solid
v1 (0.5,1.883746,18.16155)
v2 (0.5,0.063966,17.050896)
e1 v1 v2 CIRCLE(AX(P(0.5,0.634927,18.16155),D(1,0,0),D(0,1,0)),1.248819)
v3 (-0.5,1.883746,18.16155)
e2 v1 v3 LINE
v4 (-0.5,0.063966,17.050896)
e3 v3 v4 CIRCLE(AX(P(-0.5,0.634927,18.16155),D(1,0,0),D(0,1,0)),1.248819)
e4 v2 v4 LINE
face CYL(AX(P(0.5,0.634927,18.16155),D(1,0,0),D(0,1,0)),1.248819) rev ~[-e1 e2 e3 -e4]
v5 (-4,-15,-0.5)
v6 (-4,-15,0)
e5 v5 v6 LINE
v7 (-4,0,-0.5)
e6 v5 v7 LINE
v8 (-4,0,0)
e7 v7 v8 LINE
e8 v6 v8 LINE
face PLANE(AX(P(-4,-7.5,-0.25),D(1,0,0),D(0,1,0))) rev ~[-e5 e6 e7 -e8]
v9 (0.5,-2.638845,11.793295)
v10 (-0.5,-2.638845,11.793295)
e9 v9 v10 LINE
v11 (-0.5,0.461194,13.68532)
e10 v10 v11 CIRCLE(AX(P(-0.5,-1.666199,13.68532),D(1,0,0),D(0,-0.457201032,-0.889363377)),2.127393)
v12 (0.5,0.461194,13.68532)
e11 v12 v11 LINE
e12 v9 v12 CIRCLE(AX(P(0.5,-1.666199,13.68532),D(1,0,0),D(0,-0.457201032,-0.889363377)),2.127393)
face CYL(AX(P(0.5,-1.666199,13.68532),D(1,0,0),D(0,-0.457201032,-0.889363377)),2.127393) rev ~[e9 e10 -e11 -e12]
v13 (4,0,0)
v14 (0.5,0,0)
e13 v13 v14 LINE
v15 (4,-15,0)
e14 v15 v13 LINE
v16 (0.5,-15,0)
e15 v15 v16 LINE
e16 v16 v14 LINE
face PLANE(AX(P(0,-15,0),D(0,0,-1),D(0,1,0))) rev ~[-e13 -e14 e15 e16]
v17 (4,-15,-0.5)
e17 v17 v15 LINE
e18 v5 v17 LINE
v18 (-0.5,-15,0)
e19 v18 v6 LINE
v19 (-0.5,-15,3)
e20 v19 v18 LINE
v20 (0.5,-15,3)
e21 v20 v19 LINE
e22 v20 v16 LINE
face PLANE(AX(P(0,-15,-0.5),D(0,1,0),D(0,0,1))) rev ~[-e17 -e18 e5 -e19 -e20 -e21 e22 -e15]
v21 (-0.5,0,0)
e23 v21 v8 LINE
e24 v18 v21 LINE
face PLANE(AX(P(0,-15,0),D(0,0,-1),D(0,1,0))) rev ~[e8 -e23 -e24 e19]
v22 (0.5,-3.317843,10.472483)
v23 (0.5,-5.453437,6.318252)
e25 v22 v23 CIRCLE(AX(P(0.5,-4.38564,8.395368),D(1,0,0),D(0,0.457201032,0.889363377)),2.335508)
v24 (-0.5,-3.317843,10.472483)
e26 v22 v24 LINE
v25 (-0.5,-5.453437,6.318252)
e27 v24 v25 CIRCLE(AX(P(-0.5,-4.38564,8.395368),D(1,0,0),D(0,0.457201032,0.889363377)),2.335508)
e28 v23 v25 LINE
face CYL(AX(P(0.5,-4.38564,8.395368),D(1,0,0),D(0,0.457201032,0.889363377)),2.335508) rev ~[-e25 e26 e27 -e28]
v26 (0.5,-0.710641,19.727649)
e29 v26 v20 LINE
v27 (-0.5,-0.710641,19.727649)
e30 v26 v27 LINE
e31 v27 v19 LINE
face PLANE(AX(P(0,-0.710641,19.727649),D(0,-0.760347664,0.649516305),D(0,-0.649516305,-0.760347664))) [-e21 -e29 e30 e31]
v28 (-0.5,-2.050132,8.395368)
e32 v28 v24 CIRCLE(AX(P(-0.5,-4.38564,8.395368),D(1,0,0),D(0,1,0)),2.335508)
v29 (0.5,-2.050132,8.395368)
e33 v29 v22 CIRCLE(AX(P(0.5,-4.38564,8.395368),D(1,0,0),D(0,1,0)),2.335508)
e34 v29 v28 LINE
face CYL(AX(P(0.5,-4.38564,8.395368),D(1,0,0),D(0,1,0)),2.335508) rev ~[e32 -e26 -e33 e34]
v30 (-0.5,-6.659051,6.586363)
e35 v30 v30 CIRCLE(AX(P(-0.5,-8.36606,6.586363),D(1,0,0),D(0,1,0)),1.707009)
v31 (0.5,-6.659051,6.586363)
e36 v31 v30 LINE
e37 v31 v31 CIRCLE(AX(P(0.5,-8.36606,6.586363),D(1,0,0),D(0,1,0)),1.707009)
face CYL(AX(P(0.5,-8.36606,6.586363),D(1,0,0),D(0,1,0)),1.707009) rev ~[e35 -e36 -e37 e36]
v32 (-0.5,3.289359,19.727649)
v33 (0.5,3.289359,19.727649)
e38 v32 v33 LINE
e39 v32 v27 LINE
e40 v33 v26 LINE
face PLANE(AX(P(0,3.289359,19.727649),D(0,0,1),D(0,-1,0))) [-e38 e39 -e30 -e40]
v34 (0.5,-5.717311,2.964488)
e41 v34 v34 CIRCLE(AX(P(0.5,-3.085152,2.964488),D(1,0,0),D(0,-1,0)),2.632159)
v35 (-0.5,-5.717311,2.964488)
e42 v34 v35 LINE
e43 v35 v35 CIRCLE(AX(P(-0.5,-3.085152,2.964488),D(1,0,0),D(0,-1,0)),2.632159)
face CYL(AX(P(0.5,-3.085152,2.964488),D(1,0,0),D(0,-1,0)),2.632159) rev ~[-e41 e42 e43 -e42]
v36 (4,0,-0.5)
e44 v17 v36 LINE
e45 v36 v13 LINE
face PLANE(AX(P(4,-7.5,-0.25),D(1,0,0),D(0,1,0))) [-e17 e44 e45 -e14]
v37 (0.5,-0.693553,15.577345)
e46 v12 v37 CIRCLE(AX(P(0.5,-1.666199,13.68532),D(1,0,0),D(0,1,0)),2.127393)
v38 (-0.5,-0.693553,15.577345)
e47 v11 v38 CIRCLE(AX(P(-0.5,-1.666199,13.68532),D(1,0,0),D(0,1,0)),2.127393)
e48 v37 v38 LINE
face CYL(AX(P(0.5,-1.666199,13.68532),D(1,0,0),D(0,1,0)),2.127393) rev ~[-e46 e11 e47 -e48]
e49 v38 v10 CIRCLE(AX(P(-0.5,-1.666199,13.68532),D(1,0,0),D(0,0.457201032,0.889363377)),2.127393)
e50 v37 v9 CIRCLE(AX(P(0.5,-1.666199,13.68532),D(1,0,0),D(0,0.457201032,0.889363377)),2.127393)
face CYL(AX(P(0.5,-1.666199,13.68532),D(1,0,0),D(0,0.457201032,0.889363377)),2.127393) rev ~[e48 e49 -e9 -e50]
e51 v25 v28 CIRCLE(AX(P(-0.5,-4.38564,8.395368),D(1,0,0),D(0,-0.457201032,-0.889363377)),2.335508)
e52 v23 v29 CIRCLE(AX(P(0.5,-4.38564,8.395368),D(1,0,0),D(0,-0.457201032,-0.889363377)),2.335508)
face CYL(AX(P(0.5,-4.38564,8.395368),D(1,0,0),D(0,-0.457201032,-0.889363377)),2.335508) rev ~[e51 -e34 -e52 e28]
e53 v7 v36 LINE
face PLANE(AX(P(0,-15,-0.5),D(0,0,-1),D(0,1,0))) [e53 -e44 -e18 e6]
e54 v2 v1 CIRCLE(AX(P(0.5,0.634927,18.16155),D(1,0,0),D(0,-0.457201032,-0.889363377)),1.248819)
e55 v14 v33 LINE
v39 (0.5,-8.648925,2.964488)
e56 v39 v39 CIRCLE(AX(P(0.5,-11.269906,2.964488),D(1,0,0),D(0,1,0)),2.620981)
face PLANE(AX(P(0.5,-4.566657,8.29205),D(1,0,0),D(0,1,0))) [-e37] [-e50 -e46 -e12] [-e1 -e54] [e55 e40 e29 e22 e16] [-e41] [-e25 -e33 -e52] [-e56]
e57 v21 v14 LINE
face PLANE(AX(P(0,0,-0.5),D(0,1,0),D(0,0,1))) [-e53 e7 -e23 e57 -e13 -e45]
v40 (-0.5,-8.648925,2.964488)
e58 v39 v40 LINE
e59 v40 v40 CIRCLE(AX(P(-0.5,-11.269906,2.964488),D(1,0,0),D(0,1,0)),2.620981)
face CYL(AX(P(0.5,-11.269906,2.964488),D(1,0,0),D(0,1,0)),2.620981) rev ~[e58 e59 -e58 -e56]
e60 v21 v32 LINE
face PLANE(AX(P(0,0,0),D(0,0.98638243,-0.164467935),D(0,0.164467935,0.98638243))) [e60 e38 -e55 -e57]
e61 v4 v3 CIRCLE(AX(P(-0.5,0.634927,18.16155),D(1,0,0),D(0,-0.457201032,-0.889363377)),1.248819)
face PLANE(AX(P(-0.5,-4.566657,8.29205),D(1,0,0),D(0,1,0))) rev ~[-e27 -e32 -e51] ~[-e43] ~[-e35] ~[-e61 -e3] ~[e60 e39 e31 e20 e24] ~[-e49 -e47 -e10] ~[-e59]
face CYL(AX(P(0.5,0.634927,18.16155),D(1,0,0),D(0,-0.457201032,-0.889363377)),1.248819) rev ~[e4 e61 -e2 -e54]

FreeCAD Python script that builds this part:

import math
import FreeCAD as App
import Part
import Sketcher

V = App.Vector
Q = App.Units.Quantity


def add_polygon(sketch, points):
    """Adds a closed chain of lines whose ends are joined by coincident constraints."""
    first, n = sketch.GeometryCount, len(points)
    for a, b in zip(points, points[1:] + points[:1]):
        sketch.addGeometry(Part.LineSegment(App.Vector(*a, 0), App.Vector(*b, 0)), False)
    for i in range(n):
        sketch.addConstraint(Sketcher.Constraint("Coincident", first + i, 2, first + (i + 1) % n, 1))

doc = App.newDocument("Part")
body = doc.addObject("PartDesign::Body", "Body")

sketch1 = body.newObject("Sketcher::SketchObject", "Sketch")
sketch1.AttachmentSupport = (doc.getObject("YZ_Plane"), [""])
sketch1.MapMode = "FlatFace"
add_polygon(sketch1, [(-15, 0), (0, 0), (3.3, 19.7), (-0.7, 19.7), (-15, 3)])
sketch1.addConstraint([
    Sketcher.Constraint("Horizontal", 0),
    Sketcher.Constraint("Horizontal", 2),
    Sketcher.Constraint("Vertical", 4),
    Sketcher.Constraint("Coincident", 0, 2, -1, 1),
    Sketcher.Constraint("DistanceX", 0, 1, 0, 2, Q("15 mm")),
    Sketcher.Constraint("DistanceX", 2, 2, 2, 1, Q("4 mm")),
    Sketcher.Constraint("DistanceY", 4, 2, 4, 1, Q("3 mm")),
    Sketcher.Constraint("Distance", 1, Q("20 mm")),
    Sketcher.Constraint("Distance", 3, Q("22 mm")),
])
pad1 = body.newObject("PartDesign::Pad", "Pad")
pad1.Profile = sketch1
pad1.Length = 1
pad1.Midplane = True

sketch2 = body.newObject("Sketcher::SketchObject", "Sketch001")
sketch2.AttachmentSupport = (doc.getObject("YZ_Plane"), [""])
sketch2.MapMode = "FlatFace"
add_polygon(sketch2, [(-15, 0), (-15, -0.5), (0, -0.5), (0, 0)])
sketch2.addConstraint([
    Sketcher.Constraint("Vertical", 0),
    Sketcher.Constraint("Horizontal", 1),
    Sketcher.Constraint("Vertical", 2),
    Sketcher.Constraint("Horizontal", 3),
    Sketcher.Constraint("Coincident", 2, 2, -1, 1),
    Sketcher.Constraint("DistanceX", 1, 1, 1, 2, Q("15 mm")),
    Sketcher.Constraint("DistanceY", 0, 2, 0, 1, Q("0.5 mm")),
])
pad2 = body.newObject("PartDesign::Pad", "Pad001")
pad2.Profile = sketch2
pad2.Length = 8
pad2.Midplane = True

sketch3 = body.newObject("Sketcher::SketchObject", "Sketch002")
sketch3.AttachmentSupport = (doc.getObject("YZ_Plane"), [""])
sketch3.MapMode = "FlatFace"
sketch3.AttachmentOffset = App.Placement(V(0, 0, 0.5), App.Rotation())
sketch3.addGeometry([
    Part.Circle(V(-3.1, 3, 0), V(0, 0, 1), 2.6),
    Part.Circle(V(-11.3, 3, 0), V(0, 0, 1), 2.6),
    Part.ArcOfCircle(Part.Circle(V(-4.4, 8.4, 0), V(0, 0, 1), 2.3), math.radians(-117), math.radians(0)),
    Part.ArcOfCircle(Part.Circle(V(-4.4, 8.4, 0), V(0, 0, 1), 2.3), math.radians(0), math.radians(63)),
    Part.ArcOfCircle(Part.Circle(V(-4.4, 8.4, 0), V(0, 0, 1), 2.3), math.radians(63), math.radians(243)),
    Part.ArcOfCircle(Part.Circle(V(-1.7, 13.7, 0), V(0, 0, 1), 2.1), math.radians(-117), math.radians(0)),
    Part.ArcOfCircle(Part.Circle(V(-1.7, 13.7, 0), V(0, 0, 1), 2.1), math.radians(0), math.radians(63)),
    Part.ArcOfCircle(Part.Circle(V(-1.7, 13.7, 0), V(0, 0, 1), 2.1), math.radians(63), math.radians(243)),
    Part.ArcOfCircle(Part.Circle(V(0.6, 18.2, 0), V(0, 0, 1), 1.2), math.radians(0), math.radians(243)),
    Part.ArcOfCircle(Part.Circle(V(0.6, 18.2, 0), V(0, 0, 1), 1.2), math.radians(-117), math.radians(0)),
], False)
sketch3.addConstraint([
    Sketcher.Constraint("Tangent", 2, 2, 3, 1),
    Sketcher.Constraint("Tangent", 3, 2, 4, 1),
    Sketcher.Constraint("Tangent", 4, 2, 2, 1),
    Sketcher.Constraint("Tangent", 5, 2, 6, 1),
    Sketcher.Constraint("Tangent", 6, 2, 7, 1),
    Sketcher.Constraint("Tangent", 7, 2, 5, 1),
    Sketcher.Constraint("Tangent", 8, 1, 9, 2),
    Sketcher.Constraint("Coincident", 9, 1, 8, 2),
    Sketcher.Constraint("Horizontal", 0, 3, 1, 3),
    Sketcher.Constraint("Horizontal", 4, 3, 2, 2),
    Sketcher.Constraint("Horizontal", 7, 3, 5, 2),
    Sketcher.Constraint("Horizontal", 9, 3, 8, 1),
    Sketcher.Constraint("Diameter", 1, Q("5.241961 mm")),
    Sketcher.Constraint("Radius", 2, Q("2.335508 mm")),
    Sketcher.Constraint("Radius", 8, Q("1.248819 mm")),
    Sketcher.Constraint("Diameter", 0, Q("5.264318 mm")),
    Sketcher.Constraint("Radius", 5, Q("2.127393 mm")),
    Sketcher.Constraint("DistanceX", 3, 2, 7, 2, Q("0.678998 mm")),
    Sketcher.Constraint("DistanceX", 5, 3, -1, 1, Q("1.666199 mm")),
    Sketcher.Constraint("DistanceX", 6, 2, 8, 1, Q("2.577299 mm")),
    Sketcher.Constraint("DistanceX", 2, 3, -1, 1, Q("4.38564 mm")),
    Sketcher.Constraint("DistanceY", -1, 1, 5, 3, Q("13.68532 mm")),
    Sketcher.Constraint("DistanceY", -1, 1, 8, 3, Q("18.16155 mm")),
    Sketcher.Constraint("DistanceY", 0, 3, 2, 3, Q("5.43088 mm")),
    Sketcher.Constraint("DistanceY", 2, 3, 5, 3, Q("5.289952 mm")),
    Sketcher.Constraint("DistanceX", 3, 2, 2, 2, Q("1.267711 mm")),
    Sketcher.Constraint("DistanceX", 9, 1, 8, 3, Q("0.570961 mm")),
    Sketcher.Constraint("DistanceY", 6, 2, 9, 1, Q("1.473551 mm")),
    Sketcher.Constraint("DistanceX", 0, 3, -1, 1, Q("3.085152 mm")),
    Sketcher.Constraint("DistanceX", 1, 3, -1, 1, Q("11.269906 mm")),
    Sketcher.Constraint("DistanceX", 4, 2, -1, 1, Q("5.453437 mm")),
])
pocket1 = body.newObject("PartDesign::Pocket", "Pocket")
pocket1.Profile = sketch3
pocket1.Length = 25

sketch4 = body.newObject("Sketcher::SketchObject", "Sketch003")
sketch4.AttachmentSupport = (doc.getObject("YZ_Plane"), [""])
sketch4.MapMode = "FlatFace"
sketch4.AttachmentOffset = App.Placement(V(0, 0, 0.5), App.Rotation())
sketch4.addGeometry(Part.Circle(V(-8.4, 6.6, 0), V(0, 0, 1), 1.7), False)
sketch4.addConstraint([
    Sketcher.Constraint("Diameter", 0, Q("3.414018 mm")),
    Sketcher.Constraint("DistanceX", 0, 3, -1, 1, Q("8.36606 mm")),
    Sketcher.Constraint("DistanceY", -1, 1, 0, 3, Q("6.586363 mm")),
])
pocket2 = body.newObject("PartDesign::Pocket", "Pocket001")
pocket2.Profile = sketch4
pocket2.Length = 25

doc.recompute()
